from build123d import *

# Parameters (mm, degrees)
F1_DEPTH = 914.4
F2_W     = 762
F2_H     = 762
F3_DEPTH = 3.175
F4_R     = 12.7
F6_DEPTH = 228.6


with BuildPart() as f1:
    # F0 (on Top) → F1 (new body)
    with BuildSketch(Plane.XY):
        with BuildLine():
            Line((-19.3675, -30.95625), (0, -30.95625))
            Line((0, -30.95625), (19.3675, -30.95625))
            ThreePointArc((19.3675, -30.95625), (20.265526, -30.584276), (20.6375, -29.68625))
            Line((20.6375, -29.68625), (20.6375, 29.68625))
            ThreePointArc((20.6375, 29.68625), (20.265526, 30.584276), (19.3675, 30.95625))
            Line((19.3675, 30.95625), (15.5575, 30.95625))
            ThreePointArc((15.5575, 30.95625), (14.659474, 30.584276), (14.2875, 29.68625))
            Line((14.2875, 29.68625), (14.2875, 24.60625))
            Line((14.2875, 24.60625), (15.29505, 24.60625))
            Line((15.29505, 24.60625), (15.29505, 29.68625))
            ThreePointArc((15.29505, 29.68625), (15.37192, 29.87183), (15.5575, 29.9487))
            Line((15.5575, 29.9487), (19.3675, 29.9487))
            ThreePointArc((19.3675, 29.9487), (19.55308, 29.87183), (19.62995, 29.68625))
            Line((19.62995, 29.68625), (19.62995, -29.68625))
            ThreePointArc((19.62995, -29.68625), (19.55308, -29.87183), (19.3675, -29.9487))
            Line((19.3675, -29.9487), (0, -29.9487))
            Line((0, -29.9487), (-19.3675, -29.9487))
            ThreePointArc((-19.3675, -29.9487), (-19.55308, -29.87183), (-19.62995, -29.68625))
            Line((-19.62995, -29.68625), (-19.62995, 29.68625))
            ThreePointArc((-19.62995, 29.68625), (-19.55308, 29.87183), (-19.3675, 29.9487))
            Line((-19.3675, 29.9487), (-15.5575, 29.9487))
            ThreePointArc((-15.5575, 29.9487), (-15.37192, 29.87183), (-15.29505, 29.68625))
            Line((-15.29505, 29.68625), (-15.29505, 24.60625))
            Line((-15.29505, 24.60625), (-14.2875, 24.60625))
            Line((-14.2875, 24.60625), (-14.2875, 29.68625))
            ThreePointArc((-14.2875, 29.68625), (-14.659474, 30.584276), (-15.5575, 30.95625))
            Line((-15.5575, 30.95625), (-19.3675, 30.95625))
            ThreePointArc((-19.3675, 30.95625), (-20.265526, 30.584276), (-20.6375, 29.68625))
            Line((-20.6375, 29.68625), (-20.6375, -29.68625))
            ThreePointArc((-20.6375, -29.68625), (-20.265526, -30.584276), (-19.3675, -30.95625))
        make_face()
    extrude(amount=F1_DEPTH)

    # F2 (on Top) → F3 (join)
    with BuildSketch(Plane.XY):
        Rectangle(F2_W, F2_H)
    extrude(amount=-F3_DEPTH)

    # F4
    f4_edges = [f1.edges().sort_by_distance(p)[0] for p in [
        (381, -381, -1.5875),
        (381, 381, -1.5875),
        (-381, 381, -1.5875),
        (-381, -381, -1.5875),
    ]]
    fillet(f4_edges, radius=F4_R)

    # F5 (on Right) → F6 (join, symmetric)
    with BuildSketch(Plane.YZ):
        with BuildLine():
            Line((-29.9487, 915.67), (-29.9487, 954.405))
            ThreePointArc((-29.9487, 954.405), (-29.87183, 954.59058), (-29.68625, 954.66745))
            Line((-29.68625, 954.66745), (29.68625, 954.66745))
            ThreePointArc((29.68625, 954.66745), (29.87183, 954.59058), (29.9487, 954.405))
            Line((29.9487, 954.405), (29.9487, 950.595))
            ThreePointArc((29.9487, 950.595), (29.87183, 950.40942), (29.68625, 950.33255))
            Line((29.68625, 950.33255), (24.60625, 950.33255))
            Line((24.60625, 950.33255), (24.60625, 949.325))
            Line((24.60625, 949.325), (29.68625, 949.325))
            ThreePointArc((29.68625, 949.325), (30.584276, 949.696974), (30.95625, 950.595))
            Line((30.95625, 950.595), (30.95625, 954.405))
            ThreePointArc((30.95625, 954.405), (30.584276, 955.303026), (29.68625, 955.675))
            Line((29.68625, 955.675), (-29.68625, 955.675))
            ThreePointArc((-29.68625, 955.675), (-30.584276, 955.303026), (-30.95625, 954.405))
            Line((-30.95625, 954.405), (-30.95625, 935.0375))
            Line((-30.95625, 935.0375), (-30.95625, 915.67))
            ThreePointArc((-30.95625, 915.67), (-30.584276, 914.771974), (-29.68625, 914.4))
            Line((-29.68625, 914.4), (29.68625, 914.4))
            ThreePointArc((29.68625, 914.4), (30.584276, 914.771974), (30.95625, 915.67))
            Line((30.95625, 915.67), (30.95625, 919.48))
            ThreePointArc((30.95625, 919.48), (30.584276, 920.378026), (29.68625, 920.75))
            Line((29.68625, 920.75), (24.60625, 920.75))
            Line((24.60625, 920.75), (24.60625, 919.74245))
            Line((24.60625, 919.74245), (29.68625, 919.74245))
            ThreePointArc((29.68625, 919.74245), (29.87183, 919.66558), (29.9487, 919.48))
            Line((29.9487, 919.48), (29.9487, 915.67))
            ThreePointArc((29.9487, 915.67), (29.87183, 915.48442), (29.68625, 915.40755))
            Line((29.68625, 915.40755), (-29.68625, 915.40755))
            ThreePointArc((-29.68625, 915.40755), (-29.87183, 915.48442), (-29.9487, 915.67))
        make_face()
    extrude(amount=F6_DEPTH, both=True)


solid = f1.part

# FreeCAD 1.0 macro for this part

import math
import FreeCAD as App
import Part
import Sketcher
from FreeCAD import Vector
Q = App.Units.Quantity


def edges_at(feature, points):
    """Names of the edges that pass closest to the given points."""
    edges = feature.Shape.Edges
    near = lambda p: min(range(len(edges)), key=lambda i: edges[i].distToShape(Part.Vertex(*p))[0])
    return sorted({f"Edge{near(p) + 1}" for p in points})

doc = App.newDocument("Part")
body = doc.addObject("PartDesign::Body", "Body")

sketch1 = body.newObject("Sketcher::SketchObject", "Sketch")
sketch1.AttachmentSupport = (doc.getObject("XY_Plane"), [""])
sketch1.MapMode = "FlatFace"
sketch1.addGeometry([
    Part.LineSegment(Vector(-19.37, -30.96, 0), Vector(19.37, -30.96, 0)),
    Part.ArcOfCircle(Part.Circle(Vector(19.37, -29.69, 0), Vector(0, 0, 1), 1.27), math.radians(-90), math.radians(0)),
    Part.LineSegment(Vector(20.64, -29.69, 0), Vector(20.64, 29.69, 0)),
    Part.ArcOfCircle(Part.Circle(Vector(19.37, 29.69, 0), Vector(0, 0, 1), 1.27), math.radians(0), math.radians(90)),
    Part.LineSegment(Vector(19.37, 30.96, 0), Vector(15.56, 30.96, 0)),
    Part.ArcOfCircle(Part.Circle(Vector(15.56, 29.69, 0), Vector(0, 0, 1), 1.27), math.radians(90), math.radians(180)),
    Part.LineSegment(Vector(14.29, 29.69, 0), Vector(14.29, 24.61, 0)),
    Part.LineSegment(Vector(14.29, 24.61, 0), Vector(15.3, 24.61, 0)),
    Part.LineSegment(Vector(15.3, 24.61, 0), Vector(15.3, 29.69, 0)),
    Part.ArcOfCircle(Part.Circle(Vector(15.56, 29.69, 0), Vector(0, 0, 1), 0.26), math.radians(90), math.radians(180)),
    Part.LineSegment(Vector(15.56, 29.95, 0), Vector(19.37, 29.95, 0)),
    Part.ArcOfCircle(Part.Circle(Vector(19.37, 29.69, 0), Vector(0, 0, 1), 0.26), math.radians(0), math.radians(90)),
    Part.LineSegment(Vector(19.63, 29.69, 0), Vector(19.63, -29.69, 0)),
    Part.ArcOfCircle(Part.Circle(Vector(19.37, -29.69, 0), Vector(0, 0, 1), 0.26), math.radians(-90), math.radians(0)),
    Part.LineSegment(Vector(19.37, -29.95, 0), Vector(-19.37, -29.95, 0)),
    Part.ArcOfCircle(Part.Circle(Vector(-19.37, -29.69, 0), Vector(0, 0, 1), 0.26), math.radians(-180), math.radians(-90)),
    Part.LineSegment(Vector(-19.63, -29.69, 0), Vector(-19.63, 29.69, 0)),
    Part.ArcOfCircle(Part.Circle(Vector(-19.37, 29.69, 0), Vector(0, 0, 1), 0.26), math.radians(90), math.radians(180)),
    Part.LineSegment(Vector(-19.37, 29.95, 0), Vector(-15.56, 29.95, 0)),
    Part.ArcOfCircle(Part.Circle(Vector(-15.56, 29.69, 0), Vector(0, 0, 1), 0.26), math.radians(0), math.radians(90)),
    Part.LineSegment(Vector(-15.3, 29.69, 0), Vector(-15.3, 24.61, 0)),
    Part.LineSegment(Vector(-15.3, 24.61, 0), Vector(-14.29, 24.61, 0)),
    Part.LineSegment(Vector(-14.29, 24.61, 0), Vector(-14.29, 29.69, 0)),
    Part.ArcOfCircle(Part.Circle(Vector(-15.56, 29.69, 0), Vector(0, 0, 1), 1.27), math.radians(0), math.radians(90)),
    Part.LineSegment(Vector(-15.56, 30.96, 0), Vector(-19.37, 30.96, 0)),
    Part.ArcOfCircle(Part.Circle(Vector(-19.37, 29.69, 0), Vector(0, 0, 1), 1.27), math.radians(90), math.radians(180)),
    Part.LineSegment(Vector(-20.64, 29.69, 0), Vector(-20.64, -29.69, 0)),
    Part.ArcOfCircle(Part.Circle(Vector(-19.37, -29.69, 0), Vector(0, 0, 1), 1.27), math.radians(180), math.radians(270)),
], False)
sketch1.addConstraint([
    Sketcher.Constraint("Tangent", 0, 2, 1, 1),
    Sketcher.Constraint("Tangent", 1, 2, 2, 1),
    Sketcher.Constraint("Tangent", 2, 2, 3, 1),
    Sketcher.Constraint("Tangent", 3, 2, 4, 1),
    Sketcher.Constraint("Tangent", 4, 2, 5, 1),
    Sketcher.Constraint("Tangent", 5, 2, 6, 1),
    Sketcher.Constraint("Coincident", 6, 2, 7, 1),
    Sketcher.Constraint("Coincident", 7, 2, 8, 1),
    Sketcher.Constraint("Coincident", 8, 2, 9, 2),
    Sketcher.Constraint("Coincident", 9, 1, 10, 1),
    Sketcher.Constraint("Coincident", 10, 2, 11, 2),
    Sketcher.Constraint("Coincident", 11, 1, 12, 1),
    Sketcher.Constraint("Coincident", 12, 2, 13, 2),
    Sketcher.Constraint("Coincident", 13, 1, 14, 1),
    Sketcher.Constraint("Coincident", 14, 2, 15, 2),
    Sketcher.Constraint("Coincident", 15, 1, 16, 1),
    Sketcher.Constraint("Coincident", 16, 2, 17, 2),
    Sketcher.Constraint("Coincident", 17, 1, 18, 1),
    Sketcher.Constraint("Coincident", 18, 2, 19, 2),
    Sketcher.Constraint("Coincident", 19, 1, 20, 1),
    Sketcher.Constraint("Coincident", 20, 2, 21, 1),
    Sketcher.Constraint("Coincident", 21, 2, 22, 1),
    Sketcher.Constraint("Tangent", 22, 2, 23, 1),
    Sketcher.Constraint("Tangent", 23, 2, 24, 1),
    Sketcher.Constraint("Tangent", 24, 2, 25, 1),
    Sketcher.Constraint("Tangent", 25, 2, 26, 1),
    Sketcher.Constraint("Tangent", 26, 2, 27, 1),
    Sketcher.Constraint("Tangent", 27, 2, 0, 1),
    Sketcher.Constraint("Horizontal", 0),
    Sketcher.Constraint("Vertical", 2),
    Sketcher.Constraint("Horizontal", 4),
    Sketcher.Constraint("Vertical", 6),
    Sketcher.Constraint("Horizontal", 7),
    Sketcher.Constraint("Vertical", 8),
    Sketcher.Constraint("Horizontal", 10),
    Sketcher.Constraint("Vertical", 12),
    Sketcher.Constraint("Horizontal", 14),
    Sketcher.Constraint("Vertical", 16),
    Sketcher.Constraint("Horizontal", 18),
    Sketcher.Constraint("Vertical", 20),
    Sketcher.Constraint("Horizontal", 21),
    Sketcher.Constraint("Vertical", 22),
    Sketcher.Constraint("Horizontal", 24),
    Sketcher.Constraint("Vertical", 26),
    Sketcher.Constraint("Coincident", 9, 3, 5, 3),
    Sketcher.Constraint("Coincident", 11, 3, 3, 3),
    Sketcher.Constraint("Coincident", 13, 3, 1, 3),
    Sketcher.Constraint("Coincident", 23, 3, 19, 3),
    Sketcher.Constraint("Coincident", 25, 3, 17, 3),
    Sketcher.Constraint("Coincident", 27, 3, 15, 3),
    Sketcher.Constraint("Equal", 1, 3),
    Sketcher.Constraint("Equal", 3, 5),
    Sketcher.Constraint("Equal", 13, 15),
    Sketcher.Constraint("Equal", 15, 17),
    Sketcher.Constraint("Equal", 17, 19),
    Sketcher.Constraint("Symmetric", 3, 3, 15, 3, -1, 1),
    Sketcher.Constraint("Symmetric", 13, 1, 17, 1, -1, 1),
    Sketcher.Constraint("Symmetric", 8, 2, 19, 1, -2),
    Sketcher.Constraint("Horizontal", 5, 2, 8, 2),
    Sketcher.Constraint("Horizontal", 8, 2, 11, 1),
    Sketcher.Constraint("Horizontal", 1, 2, 12, 2),
    Sketcher.Constraint("Horizontal", 12, 2, 15, 1),
    Sketcher.Constraint("Horizontal", 11, 1, 16, 2),
    Sketcher.Constraint("Horizontal", 7, 2, 20, 2),
    Sketcher.Constraint("Vertical", 4, 2, 9, 1),
    Sketcher.Constraint("Vertical", 3, 2, 10, 2),
    Sketcher.Constraint("Vertical", 10, 2, 13, 1),
    Sketcher.Constraint("Vertical", 27, 3, 14, 2),
    Sketcher.Constraint("Vertical", 23, 3, 18, 2),
    Sketcher.Constraint("Radius", 1, Q("0.0499999 in")),
    Sketcher.Constraint("DistanceY", 6, 2, 6, 1, Q("0.2 in")),
    Sketcher.Constraint("DistanceX", 4, 2, 4, 1, Q("0.15 in")),
    Sketcher.Constraint("DistanceX", 0, 1, 0, 2, Q("1.525 in")),
    Sketcher.Constraint("DistanceY", 2, 1, 2, 2, Q("2.3375 in")),
    Sketcher.Constraint("Radius", 9, Q("0.262451 mm")),
])
pad1 = body.newObject("PartDesign::Pad", "Pad")
pad1.Profile = sketch1
pad1.Length = Q("36 in")

sketch2 = body.newObject("Sketcher::SketchObject", "Sketch001")
sketch2.AttachmentSupport = (doc.getObject("XY_Plane"), [""])
sketch2.MapMode = "FlatFace"
sketch2.addGeometry([
    Part.LineSegment(Vector(-381, 381, 0), Vector(-381, -381, 0)),
    Part.LineSegment(Vector(-381, -381, 0), Vector(381, -381, 0)),
    Part.LineSegment(Vector(381, -381, 0), Vector(381, 381, 0)),
    Part.LineSegment(Vector(381, 381, 0), Vector(-381, 381, 0)),
], False)
sketch2.addConstraint([
    Sketcher.Constraint("Coincident", 0, 2, 1, 1),
    Sketcher.Constraint("Coincident", 1, 2, 2, 1),
    Sketcher.Constraint("Coincident", 2, 2, 3, 1),
    Sketcher.Constraint("Coincident", 3, 2, 0, 1),
    Sketcher.Constraint("Vertical", 0),
    Sketcher.Constraint("Horizontal", 1),
    Sketcher.Constraint("Vertical", 2),
    Sketcher.Constraint("Horizontal", 3),
    Sketcher.Constraint("Symmetric", 0, 2, 2, 2, -1, 1),
    Sketcher.Constraint("Equal", 3, 0),
    Sketcher.Constraint("DistanceX", 1, 1, 1, 2, Q("30 in")),
])
pad2 = body.newObject("PartDesign::Pad", "Pad001")
pad2.Profile = sketch2
pad2.Length = Q("0.125 in")
pad2.Reversed = True
doc.recompute()

fillet = body.newObject("PartDesign::Fillet", "Fillet")
fillet.Base = (pad2, edges_at(pad2, [
    (381, -381, -1.587),
    (381, 381, -1.587),
    (-381, 381, -1.587),
    (-381, -381, -1.587),
]))
fillet.Radius = Q("0.5 in")

sketch3 = body.newObject("Sketcher::SketchObject", "Sketch002")
sketch3.AttachmentSupport = (doc.getObject("YZ_Plane"), [""])
sketch3.MapMode = "FlatFace"
sketch3.addGeometry([
    Part.LineSegment(Vector(-29.95, 915.67, 0), Vector(-29.95, 954.4, 0)),
    Part.ArcOfCircle(Part.Circle(Vector(-29.69, 954.4, 0), Vector(0, 0, 1), 0.26), math.radians(90), math.radians(180)),
    Part.LineSegment(Vector(-29.69, 954.67, 0), Vector(29.69, 954.67, 0)),
    Part.ArcOfCircle(Part.Circle(Vector(29.69, 954.4, 0), Vector(0, 0, 1), 0.26), math.radians(0), math.radians(90)),
    Part.LineSegment(Vector(29.95, 954.4, 0), Vector(29.95, 950.6, 0)),
    Part.ArcOfCircle(Part.Circle(Vector(29.69, 950.6, 0), Vector(0, 0, 1), 0.26), math.radians(-90), math.radians(0)),
    Part.LineSegment(Vector(29.69, 950.33, 0), Vector(24.61, 950.33, 0)),
    Part.LineSegment(Vector(24.61, 950.33, 0), Vector(24.61, 949.33, 0)),
    Part.LineSegment(Vector(24.61, 949.33, 0), Vector(29.69, 949.33, 0)),
    Part.ArcOfCircle(Part.Circle(Vector(29.69, 950.59, 0), Vector(0, 0, 1), 1.27), math.radians(-90), math.radians(0)),
    Part.LineSegment(Vector(30.96, 950.6, 0), Vector(30.96, 954.4, 0)),
    Part.ArcOfCircle(Part.Circle(Vector(29.69, 954.41, 0), Vector(0, 0, 1), 1.27), math.radians(0), math.radians(90)),
    Part.LineSegment(Vector(29.69, 955.67, 0), Vector(-29.69, 955.67, 0)),
    Part.ArcOfCircle(Part.Circle(Vector(-29.69, 954.41, 0), Vector(0, 0, 1), 1.27), math.radians(90), math.radians(180)),
    Part.LineSegment(Vector(-30.96, 954.4, 0), Vector(-30.96, 915.67, 0)),
    Part.ArcOfCircle(Part.Circle(Vector(-29.69, 915.67, 0), Vector(0, 0, 1), 1.27), math.radians(180), math.radians(270)),
    Part.LineSegment(Vector(-29.69, 914.4, 0), Vector(29.69, 914.4, 0)),
    Part.ArcOfCircle(Part.Circle(Vector(29.69, 915.67, 0), Vector(0, 0, 1), 1.27), math.radians(-90), math.radians(0)),
    Part.LineSegment(Vector(30.96, 915.67, 0), Vector(30.96, 919.48, 0)),
    Part.ArcOfCircle(Part.Circle(Vector(29.69, 919.48, 0), Vector(0, 0, 1), 1.27), math.radians(0), math.radians(90)),
    Part.LineSegment(Vector(29.69, 920.75, 0), Vector(24.61, 920.75, 0)),
    Part.LineSegment(Vector(24.61, 920.75, 0), Vector(24.61, 919.74, 0)),
    Part.LineSegment(Vector(24.61, 919.74, 0), Vector(29.69, 919.74, 0)),
    Part.ArcOfCircle(Part.Circle(Vector(29.69, 919.48, 0), Vector(0, 0, 1), 0.26), math.radians(0), math.radians(90)),
    Part.LineSegment(Vector(29.95, 919.48, 0), Vector(29.95, 915.67, 0)),
    Part.ArcOfCircle(Part.Circle(Vector(29.69, 915.67, 0), Vector(0, 0, 1), 0.26), math.radians(-90), math.radians(0)),
    Part.LineSegment(Vector(29.69, 915.41, 0), Vector(-29.69, 915.41, 0)),
    Part.ArcOfCircle(Part.Circle(Vector(-29.69, 915.67, 0), Vector(0, 0, 1), 0.26), math.radians(-180), math.radians(-90)),
], False)
sketch3.addConstraint([
    Sketcher.Constraint("Coincident", 0, 2, 1, 2),
    Sketcher.Constraint("Coincident", 1, 1, 2, 1),
    Sketcher.Constraint("Coincident", 2, 2, 3, 2),
    Sketcher.Constraint("Coincident", 3, 1, 4, 1),
    Sketcher.Constraint("Coincident", 4, 2, 5, 2),
    Sketcher.Constraint("Coincident", 5, 1, 6, 1),
    Sketcher.Constraint("Coincident", 6, 2, 7, 1),
    Sketcher.Constraint("Coincident", 7, 2, 8, 1),
    Sketcher.Constraint("Tangent", 8, 2, 9, 1),
    Sketcher.Constraint("Tangent", 9, 2, 10, 1),
    Sketcher.Constraint("Tangent", 10, 2, 11, 1),
    Sketcher.Constraint("Tangent", 11, 2, 12, 1),
    Sketcher.Constraint("Tangent", 12, 2, 13, 1),
    Sketcher.Constraint("Tangent", 13, 2, 14, 1),
    Sketcher.Constraint("Tangent", 14, 2, 15, 1),
    Sketcher.Constraint("Tangent", 15, 2, 16, 1),
    Sketcher.Constraint("Tangent", 16, 2, 17, 1),
    Sketcher.Constraint("Tangent", 17, 2, 18, 1),
    Sketcher.Constraint("Tangent", 18, 2, 19, 1),
    Sketcher.Constraint("Tangent", 19, 2, 20, 1),
    Sketcher.Constraint("Coincident", 20, 2, 21, 1),
    Sketcher.Constraint("Coincident", 21, 2, 22, 1),
    Sketcher.Constraint("Coincident", 22, 2, 23, 2),
    Sketcher.Constraint("Coincident", 23, 1, 24, 1),
    Sketcher.Constraint("Coincident", 24, 2, 25, 2),
    Sketcher.Constraint("Coincident", 25, 1, 26, 1),
    Sketcher.Constraint("Coincident", 26, 2, 27, 2),
    Sketcher.Constraint("Coincident", 27, 1, 0, 1),
    Sketcher.Constraint("Vertical", 0),
    Sketcher.Constraint("Horizontal", 2),
    Sketcher.Constraint("Vertical", 4),
    Sketcher.Constraint("Horizontal", 6),
    Sketcher.Constraint("Vertical", 7),
    Sketcher.Constraint("Horizontal", 8),
    Sketcher.Constraint("Vertical", 10),
    Sketcher.Constraint("Horizontal", 12),
    Sketcher.Constraint("Vertical", 14),
    Sketcher.Constraint("Horizontal", 16),
    Sketcher.Constraint("Vertical", 18),
    Sketcher.Constraint("Horizontal", 20),
    Sketcher.Constraint("Vertical", 21),
    Sketcher.Constraint("Horizontal", 22),
    Sketcher.Constraint("Vertical", 24),
    Sketcher.Constraint("Horizontal", 26),
    Sketcher.Constraint("Coincident", 9, 3, 5, 3),
    Sketcher.Constraint("Coincident", 11, 3, 3, 3),
    Sketcher.Constraint("Coincident", 13, 3, 1, 3),
    Sketcher.Constraint("Coincident", 23, 3, 19, 3),
    Sketcher.Constraint("Coincident", 25, 3, 17, 3),
    Sketcher.Constraint("Coincident", 27, 3, 15, 3),
    Sketcher.Constraint("Equal", 1, 3),
    Sketcher.Constraint("Equal", 3, 5),
    Sketcher.Constraint("Equal", 13, 15),
    Sketcher.Constraint("Equal", 15, 17),
    Sketcher.Constraint("Equal", 17, 19),
    Sketcher.Constraint("Symmetric", 0, 2, 3, 1, -2),
    Sketcher.Constraint("Symmetric", 24, 2, 27, 1, -2),
    Sketcher.Constraint("Horizontal", 13, 3, 0, 2),
    Sketcher.Constraint("Horizontal", 9, 3, 4, 2),
    Sketcher.Constraint("Horizontal", 18, 2, 23, 1),
    Sketcher.Constraint("Horizontal", 17, 2, 24, 2),
    Sketcher.Constraint("Vertical", 27, 3, 1, 1),
    Sketcher.Constraint("Vertical", 25, 3, 2, 2),
    Sketcher.Constraint("Vertical", 2, 2, 5, 1),
    Sketcher.Constraint("Vertical", 7, 2, 20, 2),
    Sketcher.Constraint("Vertical", 19, 2, 22, 2),
    Sketcher.Constraint("Vertical", 22, 2, 25, 1),
    Sketcher.Constraint("Vertical", 15, 2, 26, 2),
    Sketcher.Constraint("Equal", 10, 18),
    Sketcher.Constraint("Radius", 9, Q("0.0499999 in")),
    Sketcher.Constraint("DistanceX", 6, 2, 6, 1, Q("0.2 in")),
    Sketcher.Constraint("DistanceY", -1, 1, 15, 2, Q("36 in")),
    Sketcher.Constraint("DistanceY", 4, 2, 4, 1, Q("0.15 in")),
    Sketcher.Constraint("DistanceY", 0, 1, 0, 2, Q("1.525 in")),
    Sketcher.Constraint("DistanceX", 2, 1, 2, 2, Q("2.3375 in")),
    Sketcher.Constraint("Radius", 1, Q("0.262451 mm")),
])
pad3 = body.newObject("PartDesign::Pad", "Pad002")
pad3.Profile = sketch3
pad3.Length = Q("18 in")
pad3.Midplane = True

doc.recompute()
